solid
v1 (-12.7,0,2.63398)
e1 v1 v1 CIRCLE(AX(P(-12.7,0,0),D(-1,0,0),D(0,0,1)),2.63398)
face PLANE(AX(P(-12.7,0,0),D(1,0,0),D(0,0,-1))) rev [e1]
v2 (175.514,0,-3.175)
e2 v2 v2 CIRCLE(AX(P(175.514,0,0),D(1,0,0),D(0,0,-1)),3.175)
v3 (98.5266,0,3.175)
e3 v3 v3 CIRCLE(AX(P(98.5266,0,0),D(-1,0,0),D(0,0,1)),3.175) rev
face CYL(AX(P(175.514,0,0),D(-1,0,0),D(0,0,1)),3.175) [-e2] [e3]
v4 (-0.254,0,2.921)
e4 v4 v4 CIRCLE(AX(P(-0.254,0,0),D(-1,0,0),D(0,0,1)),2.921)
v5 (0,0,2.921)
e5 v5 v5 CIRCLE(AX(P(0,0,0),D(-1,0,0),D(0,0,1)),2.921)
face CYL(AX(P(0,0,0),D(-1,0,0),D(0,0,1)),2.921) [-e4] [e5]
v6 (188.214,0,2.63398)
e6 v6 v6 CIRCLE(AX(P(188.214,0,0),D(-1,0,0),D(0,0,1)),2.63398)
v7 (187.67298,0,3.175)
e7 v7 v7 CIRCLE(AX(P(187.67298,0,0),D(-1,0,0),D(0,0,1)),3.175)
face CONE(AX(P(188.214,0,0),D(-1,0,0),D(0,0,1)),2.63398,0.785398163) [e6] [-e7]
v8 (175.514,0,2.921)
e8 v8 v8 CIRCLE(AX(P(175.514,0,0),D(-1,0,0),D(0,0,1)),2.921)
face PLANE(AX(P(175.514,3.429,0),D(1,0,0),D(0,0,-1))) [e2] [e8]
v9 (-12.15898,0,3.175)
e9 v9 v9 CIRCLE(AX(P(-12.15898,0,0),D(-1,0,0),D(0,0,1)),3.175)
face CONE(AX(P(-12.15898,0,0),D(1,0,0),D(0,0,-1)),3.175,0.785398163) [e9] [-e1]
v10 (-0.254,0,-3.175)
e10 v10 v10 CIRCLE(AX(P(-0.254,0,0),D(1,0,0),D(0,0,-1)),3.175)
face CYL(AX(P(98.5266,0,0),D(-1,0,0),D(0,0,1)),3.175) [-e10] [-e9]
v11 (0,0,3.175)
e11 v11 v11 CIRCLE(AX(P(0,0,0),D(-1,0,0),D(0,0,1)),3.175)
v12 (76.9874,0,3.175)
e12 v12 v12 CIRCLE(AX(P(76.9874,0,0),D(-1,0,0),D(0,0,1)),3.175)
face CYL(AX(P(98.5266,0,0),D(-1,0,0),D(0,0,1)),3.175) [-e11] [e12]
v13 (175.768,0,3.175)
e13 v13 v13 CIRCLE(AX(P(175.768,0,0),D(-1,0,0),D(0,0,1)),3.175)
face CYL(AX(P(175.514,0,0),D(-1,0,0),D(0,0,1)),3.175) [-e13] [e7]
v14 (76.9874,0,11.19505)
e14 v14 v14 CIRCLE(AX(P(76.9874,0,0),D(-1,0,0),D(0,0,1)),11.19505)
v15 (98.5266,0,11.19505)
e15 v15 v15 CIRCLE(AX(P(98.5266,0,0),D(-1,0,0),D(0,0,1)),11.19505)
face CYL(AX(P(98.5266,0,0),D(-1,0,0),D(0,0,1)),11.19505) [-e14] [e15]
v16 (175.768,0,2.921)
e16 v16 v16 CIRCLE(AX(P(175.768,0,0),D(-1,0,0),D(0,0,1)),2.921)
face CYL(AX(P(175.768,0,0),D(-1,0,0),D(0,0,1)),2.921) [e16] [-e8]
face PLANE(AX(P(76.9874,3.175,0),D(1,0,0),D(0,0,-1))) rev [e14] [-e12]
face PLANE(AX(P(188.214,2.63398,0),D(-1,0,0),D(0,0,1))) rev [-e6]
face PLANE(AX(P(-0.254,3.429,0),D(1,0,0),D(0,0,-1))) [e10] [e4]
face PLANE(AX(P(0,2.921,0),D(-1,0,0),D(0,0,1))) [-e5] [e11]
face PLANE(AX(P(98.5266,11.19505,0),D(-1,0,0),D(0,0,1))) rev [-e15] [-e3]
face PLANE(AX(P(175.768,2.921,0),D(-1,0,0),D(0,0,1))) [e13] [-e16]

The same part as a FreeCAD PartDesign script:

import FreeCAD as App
import Part
import Sketcher
from FreeCAD import Vector
Q = App.Units.Quantity

doc = App.newDocument("Part")
body = doc.addObject("PartDesign::Body", "Body")

# Sketch on XY plane
sketch1 = body.newObject("Sketcher::SketchObject", "Sketch")
sketch1.AttachmentSupport = (doc.getObject("XY_Plane"), [""])
sketch1.MapMode = "FlatFace"
sketch1.addGeometry([
    Part.LineSegment(Vector(0, 3.2, 0), Vector(0, 0, 0)),  # 0
    Part.LineSegment(Vector(0, 0, 0), Vector(98.5, 0, 0)),  # 1
    Part.LineSegment(Vector(98.5, 0, 0), Vector(98.5, 11.2, 0)),  # 2
    Part.LineSegment(Vector(98.5, 11.2, 0), Vector(77, 11.2, 0)),  # 3
    Part.LineSegment(Vector(77, 11.2, 0), Vector(77, 3.2, 0)),  # 4
    Part.LineSegment(Vector(77, 3.2, 0), Vector(0, 3.2, 0)),  # 5
], False)
sketch1.addConstraint([
    Sketcher.Constraint("Coincident", 0, 2, 1, 1),
    Sketcher.Constraint("Coincident", 1, 2, 2, 1),
    Sketcher.Constraint("Coincident", 2, 2, 3, 1),
    Sketcher.Constraint("Coincident", 3, 2, 4, 1),
    Sketcher.Constraint("Coincident", 4, 2, 5, 1),
    Sketcher.Constraint("Coincident", 5, 2, 0, 1),
    Sketcher.Constraint("Vertical", 0),
    Sketcher.Constraint("Horizontal", 1),
    Sketcher.Constraint("Vertical", 2),
    Sketcher.Constraint("Horizontal", 3),
    Sketcher.Constraint("Vertical", 4),
    Sketcher.Constraint("Horizontal", 5),
    Sketcher.Constraint("Coincident", 0, 2, -1, 1),
    Sketcher.Constraint("DistanceX", 1, 1, 1, 2, Q("3.879 in")),
    Sketcher.Constraint("DistanceX", 3, 2, 3, 1, Q("0.848 in")),
    Sketcher.Constraint("DistanceY", 0, 2, 0, 1, Q("0.125 in")),
    Sketcher.Constraint("DistanceY", 2, 1, 2, 2, Q("11.19505 mm")),
])
revolution = body.newObject("PartDesign::Revolution", "Revolution")
revolution.Profile = sketch1
revolution.ReferenceAxis = (sketch1, ["H_Axis"])
revolution.Angle = 360

# Sketch on XY plane
sketch2 = body.newObject("Sketcher::SketchObject", "Sketch001")
sketch2.AttachmentSupport = (doc.getObject("XY_Plane"), [""])
sketch2.MapMode = "FlatFace"
sketch2.addGeometry([
    Part.LineSegment(Vector(-12.7, 2.6, 0), Vector(-12.7, 0, 0)),  # 0
    Part.LineSegment(Vector(-12.7, 0, 0), Vector(0, 0, 0)),  # 1
    Part.LineSegment(Vector(0, 0, 0), Vector(0, 3.2, 0)),  # 2
    Part.LineSegment(Vector(0, 3.2, 0), Vector(-12.2, 3.2, 0)),  # 3
    Part.LineSegment(Vector(-12.2, 3.2, 0), Vector(-12.7, 2.6, 0)),  # 4
], False)
sketch2.addConstraint([
    Sketcher.Constraint("Coincident", 0, 2, 1, 1),
    Sketcher.Constraint("Coincident", 1, 2, 2, 1),
    Sketcher.Constraint("Coincident", 2, 2, 3, 1),
    Sketcher.Constraint("Coincident", 3, 2, 4, 1),
    Sketcher.Constraint("Coincident", 4, 2, 0, 1),
    Sketcher.Constraint("Vertical", 0),
    Sketcher.Constraint("Horizontal", 1),
    Sketcher.Constraint("Vertical", 2),
    Sketcher.Constraint("Horizontal", 3),
    Sketcher.Constraint("Coincident", 1, 2, -1, 1),
    Sketcher.Constraint("DistanceX", 1, 1, 1, 2, Q("0.5 in")),
    Sketcher.Constraint("Angle", 4, Q("-135 deg")),
    Sketcher.Constraint("DistanceY", 2, 1, 2, 2, Q("0.125 in")),
    Sketcher.Constraint("DistanceX", 3, 2, 3, 1, Q("0.4787 in")),
])
revolution2 = body.newObject("PartDesign::Revolution", "Revolution001")
revolution2.Profile = sketch2
revolution2.ReferenceAxis = (sketch2, ["H_Axis"])
revolution2.Angle = 360

# Sketch on XY plane
sketch3 = body.newObject("Sketcher::SketchObject", "Sketch002")
sketch3.AttachmentSupport = (doc.getObject("XY_Plane"), [""])
sketch3.MapMode = "FlatFace"
sketch3.addGeometry([
    Part.LineSegment(Vector(98.5, 3.2, 0), Vector(98.5, 0, 0)),
    Part.LineSegment(Vector(98.5, 0, 0), Vector(175.5, 0, 0)),
    Part.LineSegment(Vector(175.5, 0, 0), Vector(175.5, 3.2, 0)),
    Part.LineSegment(Vector(175.5, 3.2, 0), Vector(98.5, 3.2, 0)),
], False)
sketch3.addConstraint([
    Sketcher.Constraint("Coincident", 0, 2, 1, 1),
    Sketcher.Constraint("Coincident", 1, 2, 2, 1),
    Sketcher.Constraint("Coincident", 2, 2, 3, 1),
    Sketcher.Constraint("Coincident", 3, 2, 0, 1),
    Sketcher.Constraint("Vertical", 0),
    Sketcher.Constraint("Horizontal", 1),
    Sketcher.Constraint("Vertical", 2),
    Sketcher.Constraint("Horizontal", 3),
    Sketcher.Constraint("PointOnObject", 0, 2, -1),
    Sketcher.Constraint("DistanceX", 1, 1, 1, 2, Q("3.031 in")),
    Sketcher.Constraint("DistanceY", 0, 2, 0, 1, Q("0.125 in")),
    Sketcher.Constraint("DistanceX", -1, 1, 1, 2, Q("6.91 in")),
])
revolution3 = body.newObject("PartDesign::Revolution", "Revolution002")
revolution3.Profile = sketch3
revolution3.ReferenceAxis = (sketch3, ["H_Axis"])
revolution3.Angle = 360

# Sketch on XY plane
sketch4 = body.newObject("Sketcher::SketchObject", "Sketch003")
sketch4.AttachmentSupport = (doc.getObject("XY_Plane"), [""])
sketch4.MapMode = "FlatFace"
sketch4.addGeometry([
    Part.LineSegment(Vector(175.5, 3.2, 0), Vector(175.5, 0, 0)),  # 0
    Part.LineSegment(Vector(175.5, 0, 0), Vector(188.2, 0, 0)),  # 1
    Part.LineSegment(Vector(188.2, 0, 0), Vector(188.2, 2.6, 0)),  # 2
    Part.LineSegment(Vector(188.2, 2.6, 0), Vector(187.7, 3.2, 0)),  # 3
    Part.LineSegment(Vector(187.7, 3.2, 0), Vector(175.5, 3.2, 0)),  # 4
], False)
sketch4.addConstraint([
    Sketcher.Constraint("Coincident", 0, 2, 1, 1),
    Sketcher.Constraint("Coincident", 1, 2, 2, 1),
    Sketcher.Constraint("Coincident", 2, 2, 3, 1),
    Sketcher.Constraint("Coincident", 3, 2, 4, 1),
    Sketcher.Constraint("Coincident", 4, 2, 0, 1),
    Sketcher.Constraint("Vertical", 0),
    Sketcher.Constraint("Horizontal", 1),
    Sketcher.Constraint("Vertical", 2),
    Sketcher.Constraint("Horizontal", 4),
    Sketcher.Constraint("PointOnObject", 0, 2, -1),
    Sketcher.Constraint("DistanceX", 1, 1, 1, 2, Q("0.5 in")),
    Sketcher.Constraint("Angle", 3, Q("135 deg")),
    Sketcher.Constraint("DistanceY", 0, 2, 0, 1, Q("0.125 in")),
    Sketcher.Constraint("DistanceX", -1, 1, 0, 2, Q("6.91 in")),
    Sketcher.Constraint("DistanceX", 4, 2, 4, 1, Q("0.4787 in")),
])
revolution4 = body.newObject("PartDesign::Revolution", "Revolution003")
revolution4.Profile = sketch4
revolution4.ReferenceAxis = (sketch4, ["H_Axis"])
revolution4.Angle = 360

# Sketch on XY plane
sketch5 = body.newObject("Sketcher::SketchObject", "Sketch004")
sketch5.AttachmentSupport = (doc.getObject("XY_Plane"), [""])
sketch5.MapMode = "FlatFace"
sketch5.addGeometry([
    Part.LineSegment(Vector(-0.25, 3.43, 0), Vector(-0.25, 2.92, 0)),
    Part.LineSegment(Vector(-0.25, 2.92, 0), Vector(0, 2.92, 0)),
    Part.LineSegment(Vector(0, 2.92, 0), Vector(0, 3.43, 0)),
    Part.LineSegment(Vector(0, 3.43, 0), Vector(-0.25, 3.43, 0)),
], False)
sketch5.addConstraint([
    Sketcher.Constraint("Coincident", 0, 2, 1, 1),
    Sketcher.Constraint("Coincident", 1, 2, 2, 1),
    Sketcher.Constraint("Coincident", 2, 2, 3, 1),
    Sketcher.Constraint("Coincident", 3, 2, 0, 1),
    Sketcher.Constraint("Vertical", 0),
    Sketcher.Constraint("Horizontal", 1),
    Sketcher.Constraint("Vertical", 2),
    Sketcher.Constraint("Horizontal", 3),
    Sketcher.Constraint("PointOnObject", 1, 2, -2),
    Sketcher.Constraint("DistanceX", 1, 1, 1, 2, Q("0.01 in")),
    Sketcher.Constraint("DistanceY", 0, 2, 0, 1, Q("0.02 in")),
    Sketcher.Constraint("DistanceY", -1, 1, 0, 2, Q("0.115 in")),
])
groove = body.newObject("PartDesign::Groove", "Groove")
groove.Profile = sketch5
groove.ReferenceAxis = (sketch5, ["H_Axis"])
groove.Angle = 360

# Sketch on XY plane
sketch6 = body.newObject("Sketcher::SketchObject", "Sketch005")
sketch6.AttachmentSupport = (doc.getObject("XY_Plane"), [""])
sketch6.MapMode = "FlatFace"
sketch6.addGeometry([
    Part.LineSegment(Vector(175.51, 3.43, 0), Vector(175.51, 2.92, 0)),
    Part.LineSegment(Vector(175.51, 2.92, 0), Vector(175.77, 2.92, 0)),
    Part.LineSegment(Vector(175.77, 2.92, 0), Vector(175.77, 3.43, 0)),
    Part.LineSegment(Vector(175.77, 3.43, 0), Vector(175.51, 3.43, 0)),
], False)
sketch6.addConstraint([
    Sketcher.Constraint("Coincident", 0, 2, 1, 1),
    Sketcher.Constraint("Coincident", 1, 2, 2, 1),
    Sketcher.Constraint("Coincident", 2, 2, 3, 1),
    Sketcher.Constraint("Coincident", 3, 2, 0, 1),
    Sketcher.Constraint("Vertical", 0),
    Sketcher.Constraint("Horizontal", 1),
    Sketcher.Constraint("Vertical", 2),
    Sketcher.Constraint("Horizontal", 3),
    Sketcher.Constraint("DistanceX", 1, 1, 1, 2, Q("0.01 in")),
    Sketcher.Constraint("DistanceY", 0, 2, 0, 1, Q("0.02 in")),
    Sketcher.Constraint("DistanceX", -1, 1, 0, 2, Q("6.91 in")),
    Sketcher.Constraint("DistanceY", -1, 1, 0, 2, Q("0.115 in")),
])
groove2 = body.newObject("PartDesign::Groove", "Groove001")
groove2.Profile = sketch6
groove2.ReferenceAxis = (sketch6, ["H_Axis"])
groove2.Angle = 360

doc.recompute()
